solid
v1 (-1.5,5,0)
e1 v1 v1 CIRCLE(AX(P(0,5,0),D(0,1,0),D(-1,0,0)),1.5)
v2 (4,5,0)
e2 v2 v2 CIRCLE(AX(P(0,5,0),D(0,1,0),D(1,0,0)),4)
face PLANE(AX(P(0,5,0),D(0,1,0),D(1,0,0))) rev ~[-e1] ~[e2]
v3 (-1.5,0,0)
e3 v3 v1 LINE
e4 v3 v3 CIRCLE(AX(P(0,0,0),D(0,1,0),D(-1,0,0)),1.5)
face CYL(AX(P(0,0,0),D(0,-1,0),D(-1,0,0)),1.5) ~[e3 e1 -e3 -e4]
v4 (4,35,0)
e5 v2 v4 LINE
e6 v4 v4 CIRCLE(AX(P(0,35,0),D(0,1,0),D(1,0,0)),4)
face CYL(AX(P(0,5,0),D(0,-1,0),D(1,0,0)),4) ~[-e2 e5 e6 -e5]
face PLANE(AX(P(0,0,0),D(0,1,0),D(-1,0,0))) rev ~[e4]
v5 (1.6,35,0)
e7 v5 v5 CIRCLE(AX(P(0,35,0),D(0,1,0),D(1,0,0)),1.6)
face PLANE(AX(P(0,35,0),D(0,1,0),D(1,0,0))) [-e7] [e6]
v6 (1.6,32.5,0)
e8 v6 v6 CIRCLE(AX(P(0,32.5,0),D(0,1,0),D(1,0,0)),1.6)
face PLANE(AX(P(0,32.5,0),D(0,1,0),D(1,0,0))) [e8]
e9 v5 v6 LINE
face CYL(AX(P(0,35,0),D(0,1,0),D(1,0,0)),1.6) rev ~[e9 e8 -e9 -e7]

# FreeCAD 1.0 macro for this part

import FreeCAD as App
import Part
import Sketcher

V = App.Vector

doc = App.newDocument("Part")
body = doc.addObject("PartDesign::Body", "Body")

sketch1 = doc.addObject("Sketcher::SketchObject", "Sketch")
body.addObject(sketch1)
sketch1.AttachmentSupport = (doc.XZ_Plane, [""])
sketch1.MapMode = "FlatFace"
sketch1.addGeometry(Part.Circle(V(0, 0, 0), V(0, 0, 1), 1.5), False)
sketch1.addConstraint([
    Sketcher.Constraint("Coincident", 0, 3, -1, 1),
    Sketcher.Constraint("Diameter", 0, 3.0),
])
pad1 = doc.addObject("PartDesign::Pad", "Pad")
body.addObject(pad1)
pad1.Profile = sketch1
pad1.Length = 5
pad1.Reversed = True

sketch2 = doc.addObject("Sketcher::SketchObject", "Sketch001")
body.addObject(sketch2)
sketch2.AttachmentSupport = (doc.XZ_Plane, [""])
sketch2.MapMode = "FlatFace"
sketch2.AttachmentOffset = App.Placement(V(0, 0, -5), App.Rotation())
sketch2.addGeometry(Part.Circle(V(0, 0, 0), V(0, 0, 1), 4), False)
sketch2.addConstraint([
    Sketcher.Constraint("Coincident", 0, 3, -1, 1),
    Sketcher.Constraint("Diameter", 0, 8.0),
])
pad2 = doc.addObject("PartDesign::Pad", "Pad001")
body.addObject(pad2)
pad2.Profile = sketch2
pad2.Length = 30
pad2.Reversed = True

sketch3 = doc.addObject("Sketcher::SketchObject", "Sketch002")
body.addObject(sketch3)
sketch3.AttachmentSupport = (doc.XZ_Plane, [""])
sketch3.MapMode = "FlatFace"
sketch3.AttachmentOffset = App.Placement(V(0, 0, -35), App.Rotation())
sketch3.addGeometry(Part.Circle(V(0, 0, 0), V(0, 0, 1), 1.6), False)
sketch3.addConstraint([
    Sketcher.Constraint("Coincident", 0, 3, -1, 1),
    Sketcher.Constraint("Diameter", 0, 3.2),
])
pocket1 = doc.addObject("PartDesign::Pocket", "Pocket")
body.addObject(pocket1)
pocket1.Profile = sketch3
pocket1.Length = 2.5
pocket1.Reversed = True

doc.recompute()
